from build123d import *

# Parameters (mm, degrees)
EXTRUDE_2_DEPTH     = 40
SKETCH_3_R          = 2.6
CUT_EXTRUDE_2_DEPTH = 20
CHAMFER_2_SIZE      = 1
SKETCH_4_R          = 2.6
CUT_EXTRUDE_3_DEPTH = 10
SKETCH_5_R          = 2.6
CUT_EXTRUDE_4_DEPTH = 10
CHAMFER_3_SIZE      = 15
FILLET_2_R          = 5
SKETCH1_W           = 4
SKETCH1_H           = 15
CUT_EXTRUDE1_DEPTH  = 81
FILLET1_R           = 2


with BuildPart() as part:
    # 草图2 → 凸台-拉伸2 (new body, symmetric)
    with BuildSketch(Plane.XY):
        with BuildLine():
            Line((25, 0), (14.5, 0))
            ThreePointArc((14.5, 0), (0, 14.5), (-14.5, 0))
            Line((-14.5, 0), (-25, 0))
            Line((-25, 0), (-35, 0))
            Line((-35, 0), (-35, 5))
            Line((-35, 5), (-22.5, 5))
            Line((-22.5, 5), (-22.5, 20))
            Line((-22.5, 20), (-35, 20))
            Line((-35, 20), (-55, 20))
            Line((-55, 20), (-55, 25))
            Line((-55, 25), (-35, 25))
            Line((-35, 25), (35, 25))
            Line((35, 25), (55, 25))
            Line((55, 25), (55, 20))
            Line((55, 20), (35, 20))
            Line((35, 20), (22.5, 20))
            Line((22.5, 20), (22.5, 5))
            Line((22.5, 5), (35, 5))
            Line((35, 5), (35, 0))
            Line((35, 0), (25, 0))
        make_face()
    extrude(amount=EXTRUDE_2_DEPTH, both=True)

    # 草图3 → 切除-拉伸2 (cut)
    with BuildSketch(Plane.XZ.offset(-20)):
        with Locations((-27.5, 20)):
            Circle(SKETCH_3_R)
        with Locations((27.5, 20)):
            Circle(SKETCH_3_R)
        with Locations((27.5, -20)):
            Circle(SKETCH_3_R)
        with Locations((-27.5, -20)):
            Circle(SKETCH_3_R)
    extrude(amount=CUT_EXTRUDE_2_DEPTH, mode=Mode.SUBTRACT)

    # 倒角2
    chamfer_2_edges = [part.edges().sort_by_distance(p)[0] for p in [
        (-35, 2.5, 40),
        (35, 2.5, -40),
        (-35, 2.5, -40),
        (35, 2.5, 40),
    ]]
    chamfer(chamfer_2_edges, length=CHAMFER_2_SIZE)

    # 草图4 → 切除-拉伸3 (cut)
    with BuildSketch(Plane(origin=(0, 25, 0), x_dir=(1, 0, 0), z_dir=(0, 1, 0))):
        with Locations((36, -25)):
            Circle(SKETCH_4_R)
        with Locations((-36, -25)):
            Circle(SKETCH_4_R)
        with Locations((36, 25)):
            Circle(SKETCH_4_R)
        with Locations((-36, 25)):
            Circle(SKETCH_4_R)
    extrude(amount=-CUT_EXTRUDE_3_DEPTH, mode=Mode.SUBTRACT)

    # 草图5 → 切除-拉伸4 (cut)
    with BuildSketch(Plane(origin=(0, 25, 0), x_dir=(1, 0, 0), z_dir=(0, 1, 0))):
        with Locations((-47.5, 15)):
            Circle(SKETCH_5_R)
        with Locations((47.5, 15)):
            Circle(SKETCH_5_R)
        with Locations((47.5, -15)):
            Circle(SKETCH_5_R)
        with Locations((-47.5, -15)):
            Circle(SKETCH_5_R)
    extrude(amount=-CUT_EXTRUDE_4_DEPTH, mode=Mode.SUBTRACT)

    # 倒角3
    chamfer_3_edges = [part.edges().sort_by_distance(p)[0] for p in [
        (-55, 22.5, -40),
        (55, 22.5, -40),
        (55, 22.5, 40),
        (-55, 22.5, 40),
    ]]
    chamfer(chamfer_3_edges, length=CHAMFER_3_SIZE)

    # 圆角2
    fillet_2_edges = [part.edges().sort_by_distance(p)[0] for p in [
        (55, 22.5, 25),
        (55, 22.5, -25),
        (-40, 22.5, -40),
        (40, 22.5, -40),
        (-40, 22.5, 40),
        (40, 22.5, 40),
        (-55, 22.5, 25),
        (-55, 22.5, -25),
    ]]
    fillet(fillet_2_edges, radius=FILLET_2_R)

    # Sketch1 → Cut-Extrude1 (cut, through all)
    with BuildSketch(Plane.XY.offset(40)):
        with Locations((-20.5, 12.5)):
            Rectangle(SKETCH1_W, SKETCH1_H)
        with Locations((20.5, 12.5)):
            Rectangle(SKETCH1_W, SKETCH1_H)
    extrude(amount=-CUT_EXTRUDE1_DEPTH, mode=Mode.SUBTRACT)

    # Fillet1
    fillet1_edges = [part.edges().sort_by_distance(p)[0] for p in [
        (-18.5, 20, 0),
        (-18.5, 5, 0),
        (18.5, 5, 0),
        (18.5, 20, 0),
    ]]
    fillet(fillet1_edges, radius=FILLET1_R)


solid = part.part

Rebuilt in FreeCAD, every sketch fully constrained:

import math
import FreeCAD as App
import Part
import Sketcher


def edges_at(feature, points):
    """Names of the edges that pass closest to the given points."""
    edges = feature.Shape.Edges
    near = lambda p: min(range(len(edges)), key=lambda i: edges[i].distToShape(Part.Vertex(*p))[0])
    return sorted({f"Edge{near(p) + 1}" for p in points})


def add_polygon(sketch, points):
    """Adds a closed chain of lines whose ends are joined by coincident constraints."""
    first, n = sketch.GeometryCount, len(points)
    for a, b in zip(points, points[1:] + points[:1]):
        sketch.addGeometry(Part.LineSegment(App.Vector(*a, 0), App.Vector(*b, 0)), False)
    for i in range(n):
        sketch.addConstraint(Sketcher.Constraint("Coincident", first + i, 2, first + (i + 1) % n, 1))

doc = App.newDocument("Part")
params = doc.addObject("Spreadsheet::Sheet", "Params")
for row, (alias, value) in enumerate([
    ("sketch1_radius", "14.5 mm"),
    ("sketch1_width", "110 mm"),
    ("sketch1_height", "5 mm"),
    ("sketch1_height2", "15 mm"),
    ("sketch1_width2", "20.5 mm"),
    ("pad1_length", "80 mm"),
    ("sketch2_diameter", "5.2 mm"),
    ("pocket1_length", "20 mm"),
    ("chamfer_size", "1 mm"),
    ("sketch3_diameter", "5.2 mm"),
    ("pocket2_length", "10 mm"),
    ("sketch4_diameter", "5.2 mm"),
    ("pocket3_length", "10 mm"),
    ("chamfer2_size", "15 mm"),
    ("fillet_radius", "5 mm"),
    ("sketch5_width", "4 mm"),
    ("sketch5_height", "15 mm"),
    ("fillet2_radius", "2 mm"),
], start=1):
    params.set(f"A{row}", alias)
    params.set(f"B{row}", "=" + value)
    params.setAlias(f"B{row}", alias)

body = doc.addObject("PartDesign::Body", "Body")

# Sketch on XY plane
sketch1 = doc.addObject("Sketcher::SketchObject", "Sketch")
body.addObject(sketch1)
sketch1.AttachmentSupport = (doc.XY_Plane, [""])
sketch1.MapMode = "FlatFace"
sketch1.addGeometry(Part.ArcOfCircle(Part.Circle(App.Vector(0, 0, 0), App.Vector(0, 0, 1), 14.5), math.radians(0), math.radians(180)), False)
sketch1.addGeometry(Part.LineSegment(App.Vector(14.5, 0, 0), App.Vector(35, 0, 0)), False)
sketch1.addGeometry(Part.LineSegment(App.Vector(35, 0, 0), App.Vector(35, 5, 0)), False)
sketch1.addGeometry(Part.LineSegment(App.Vector(35, 5, 0), App.Vector(22.5, 5, 0)), False)
sketch1.addGeometry(Part.LineSegment(App.Vector(22.5, 5, 0), App.Vector(22.5, 20, 0)), False)
sketch1.addGeometry(Part.LineSegment(App.Vector(22.5, 20, 0), App.Vector(55, 20, 0)), False)
sketch1.addGeometry(Part.LineSegment(App.Vector(55, 20, 0), App.Vector(55, 25, 0)), False)
sketch1.addGeometry(Part.LineSegment(App.Vector(55, 25, 0), App.Vector(-55, 25, 0)), False)
sketch1.addGeometry(Part.LineSegment(App.Vector(-55, 25, 0), App.Vector(-55, 20, 0)), False)
sketch1.addGeometry(Part.LineSegment(App.Vector(-55, 20, 0), App.Vector(-22.5, 20, 0)), False)
sketch1.addGeometry(Part.LineSegment(App.Vector(-22.5, 20, 0), App.Vector(-22.5, 5, 0)), False)
sketch1.addGeometry(Part.LineSegment(App.Vector(-22.5, 5, 0), App.Vector(-35, 5, 0)), False)
sketch1.addGeometry(Part.LineSegment(App.Vector(-35, 5, 0), App.Vector(-35, 0, 0)), False)
sketch1.addGeometry(Part.LineSegment(App.Vector(-35, 0, 0), App.Vector(-14.5, 0, 0)), False)
sketch1.addConstraint(Sketcher.Constraint("Coincident", 0, 1, 1, 1))
sketch1.addConstraint(Sketcher.Constraint("Coincident", 1, 2, 2, 1))
sketch1.addConstraint(Sketcher.Constraint("Coincident", 2, 2, 3, 1))
sketch1.addConstraint(Sketcher.Constraint("Coincident", 3, 2, 4, 1))
sketch1.addConstraint(Sketcher.Constraint("Coincident", 4, 2, 5, 1))
sketch1.addConstraint(Sketcher.Constraint("Coincident", 5, 2, 6, 1))
sketch1.addConstraint(Sketcher.Constraint("Coincident", 6, 2, 7, 1))
sketch1.addConstraint(Sketcher.Constraint("Coincident", 7, 2, 8, 1))
sketch1.addConstraint(Sketcher.Constraint("Coincident", 8, 2, 9, 1))
sketch1.addConstraint(Sketcher.Constraint("Coincident", 9, 2, 10, 1))
sketch1.addConstraint(Sketcher.Constraint("Coincident", 10, 2, 11, 1))
sketch1.addConstraint(Sketcher.Constraint("Coincident", 11, 2, 12, 1))
sketch1.addConstraint(Sketcher.Constraint("Coincident", 12, 2, 13, 1))
sketch1.addConstraint(Sketcher.Constraint("Coincident", 13, 2, 0, 2))
sketch1.addConstraint(Sketcher.Constraint("Horizontal", 1))
sketch1.addConstraint(Sketcher.Constraint("Vertical", 2))
sketch1.addConstraint(Sketcher.Constraint("Horizontal", 3))
sketch1.addConstraint(Sketcher.Constraint("Vertical", 4))
sketch1.addConstraint(Sketcher.Constraint("Horizontal", 5))
sketch1.addConstraint(Sketcher.Constraint("Vertical", 6))
sketch1.addConstraint(Sketcher.Constraint("Horizontal", 7))
sketch1.addConstraint(Sketcher.Constraint("Vertical", 8))
sketch1.addConstraint(Sketcher.Constraint("Horizontal", 9))
sketch1.addConstraint(Sketcher.Constraint("Vertical", 10))
sketch1.addConstraint(Sketcher.Constraint("Horizontal", 11))
sketch1.addConstraint(Sketcher.Constraint("Vertical", 12))
sketch1.addConstraint(Sketcher.Constraint("Horizontal", 13))
sketch1.addConstraint(Sketcher.Constraint("Coincident", 0, 3, -1, 1))
sketch1.addConstraint(Sketcher.Constraint("Symmetric", 1, 2, 12, 2, -1, 1))
sketch1.addConstraint(Sketcher.Constraint("Symmetric", 5, 2, 8, 2, -2))
sketch1.addConstraint(Sketcher.Constraint("Symmetric", 3, 2, 10, 2, -2))
sketch1.addConstraint(Sketcher.Constraint("PointOnObject", 0, 1, -1))
sketch1.addConstraint(Sketcher.Constraint("Equal", 2, 6))
sketch1.addConstraint(Sketcher.Constraint("Radius", 0, 14.5))
sketch1.addConstraint(Sketcher.Constraint("DistanceX", 7, 2, 7, 1, 110.0))
sketch1.addConstraint(Sketcher.Constraint("DistanceY", 2, 1, 2, 2, 5.0))
sketch1.addConstraint(Sketcher.Constraint("DistanceY", 4, 1, 4, 2, 15.0))
sketch1.addConstraint(Sketcher.Constraint("DistanceX", 1, 1, 1, 2, 20.5))
sketch1.addConstraint(Sketcher.Constraint("DistanceX", 3, 2, 3, 1, 12.5))
sketch1.setExpression("Constraints[33]", "Params.sketch1_radius")
sketch1.setExpression("Constraints[34]", "Params.sketch1_width")
sketch1.setExpression("Constraints[35]", "Params.sketch1_height")
sketch1.setExpression("Constraints[36]", "Params.sketch1_height2")
sketch1.setExpression("Constraints[37]", "Params.sketch1_width2")
pad1 = doc.addObject("PartDesign::Pad", "Pad")
body.addObject(pad1)
pad1.Profile = sketch1
pad1.setExpression("Length", "Params.pad1_length")
pad1.Midplane = True

# Sketch on XZ plane
sketch2 = doc.addObject("Sketcher::SketchObject", "Sketch001")
body.addObject(sketch2)
sketch2.AttachmentSupport = (doc.XZ_Plane, [""])
sketch2.MapMode = "FlatFace"
sketch2.AttachmentOffset = App.Placement(App.Vector(0, 0, -20), App.Rotation())
sketch2.addGeometry(Part.Circle(App.Vector(-27.5, 20, 0), App.Vector(0, 0, 1), 2.6), False)
sketch2.addGeometry(Part.Circle(App.Vector(27.5, 20, 0), App.Vector(0, 0, 1), 2.6), False)
sketch2.addGeometry(Part.Circle(App.Vector(27.5, -20, 0), App.Vector(0, 0, 1), 2.6), False)
sketch2.addGeometry(Part.Circle(App.Vector(-27.5, -20, 0), App.Vector(0, 0, 1), 2.6), False)
sketch2.addConstraint(Sketcher.Constraint("Equal", 0, 1))
sketch2.addConstraint(Sketcher.Constraint("Equal", 1, 2))
sketch2.addConstraint(Sketcher.Constraint("Equal", 2, 3))
sketch2.addConstraint(Sketcher.Constraint("Symmetric", 0, 3, 2, 3, -1, 1))
sketch2.addConstraint(Sketcher.Constraint("Symmetric", 1, 3, 3, 3, -1, 1))
sketch2.addConstraint(Sketcher.Constraint("Symmetric", 0, 3, 1, 3, -2))
sketch2.addConstraint(Sketcher.Constraint("Diameter", 0, 5.2))
sketch2.addConstraint(Sketcher.Constraint("DistanceY", -1, 1, 0, 3, 20.0))
sketch2.addConstraint(Sketcher.Constraint("DistanceX", 0, 3, 1, 3, 55.0))
sketch2.setExpression("Constraints[6]", "Params.sketch2_diameter")
pocket1 = doc.addObject("PartDesign::Pocket", "Pocket")
body.addObject(pocket1)
pocket1.Profile = sketch2
pocket1.setExpression("Length", "Params.pocket1_length")
pocket1.Reversed = True
doc.recompute()

chamfer = doc.addObject("PartDesign::Chamfer", "Chamfer")
body.addObject(chamfer)
chamfer.Base = (pocket1, edges_at(pocket1, [
    (-35, 2.5, 40),
    (35, 2.5, -40),
    (-35, 2.5, -40),
    (35, 2.5, 40),
]))
chamfer.setExpression("Size", "Params.chamfer_size")

# Sketch on XZ plane
sketch3 = doc.addObject("Sketcher::SketchObject", "Sketch002")
body.addObject(sketch3)
sketch3.AttachmentSupport = (doc.XZ_Plane, [""])
sketch3.MapMode = "FlatFace"
sketch3.AttachmentOffset = App.Placement(App.Vector(0, 0, -25), App.Rotation())
sketch3.addGeometry(Part.Circle(App.Vector(36, 25, 0), App.Vector(0, 0, 1), 2.6), False)
sketch3.addGeometry(Part.Circle(App.Vector(-36, 25, 0), App.Vector(0, 0, 1), 2.6), False)
sketch3.addGeometry(Part.Circle(App.Vector(36, -25, 0), App.Vector(0, 0, 1), 2.6), False)
sketch3.addGeometry(Part.Circle(App.Vector(-36, -25, 0), App.Vector(0, 0, 1), 2.6), False)
sketch3.addConstraint(Sketcher.Constraint("Equal", 0, 1))
sketch3.addConstraint(Sketcher.Constraint("Equal", 1, 2))
sketch3.addConstraint(Sketcher.Constraint("Equal", 2, 3))
sketch3.addConstraint(Sketcher.Constraint("Symmetric", 1, 3, 2, 3, -1, 1))
sketch3.addConstraint(Sketcher.Constraint("Symmetric", 0, 3, 3, 3, -1, 1))
sketch3.addConstraint(Sketcher.Constraint("Symmetric", 0, 3, 1, 3, -2))
sketch3.addConstraint(Sketcher.Constraint("Diameter", 0, 5.2))
sketch3.addConstraint(Sketcher.Constraint("DistanceX", -1, 1, 0, 3, 36.0))
sketch3.addConstraint(Sketcher.Constraint("DistanceY", -1, 1, 0, 3, 25.0))
sketch3.setExpression("Constraints[6]", "Params.sketch3_diameter")
pocket2 = doc.addObject("PartDesign::Pocket", "Pocket001")
body.addObject(pocket2)
pocket2.Profile = sketch3
pocket2.setExpression("Length", "Params.pocket2_length")
pocket2.Reversed = True

# Sketch on XZ plane
sketch4 = doc.addObject("Sketcher::SketchObject", "Sketch003")
body.addObject(sketch4)
sketch4.AttachmentSupport = (doc.XZ_Plane, [""])
sketch4.MapMode = "FlatFace"
sketch4.AttachmentOffset = App.Placement(App.Vector(0, 0, -25), App.Rotation())
sketch4.addGeometry(Part.Circle(App.Vector(-47.5, -15, 0), App.Vector(0, 0, 1), 2.6), False)
sketch4.addGeometry(Part.Circle(App.Vector(47.5, -15, 0), App.Vector(0, 0, 1), 2.6), False)
sketch4.addGeometry(Part.Circle(App.Vector(47.5, 15, 0), App.Vector(0, 0, 1), 2.6), False)
sketch4.addGeometry(Part.Circle(App.Vector(-47.5, 15, 0), App.Vector(0, 0, 1), 2.6), False)
sketch4.addConstraint(Sketcher.Constraint("Equal", 0, 1))
sketch4.addConstraint(Sketcher.Constraint("Equal", 1, 2))
sketch4.addConstraint(Sketcher.Constraint("Equal", 2, 3))
sketch4.addConstraint(Sketcher.Constraint("Symmetric", 0, 3, 2, 3, -1, 1))
sketch4.addConstraint(Sketcher.Constraint("Symmetric", 1, 3, 3, 3, -1, 1))
sketch4.addConstraint(Sketcher.Constraint("Symmetric", 0, 3, 1, 3, -2))
sketch4.addConstraint(Sketcher.Constraint("Diameter", 0, 5.2))
sketch4.addConstraint(Sketcher.Constraint("DistanceY", 0, 3, -1, 1, 15.0))
sketch4.addConstraint(Sketcher.Constraint("DistanceX", 0, 3, 1, 3, 95.0))
sketch4.setExpression("Constraints[6]", "Params.sketch4_diameter")
pocket3 = doc.addObject("PartDesign::Pocket", "Pocket002")
body.addObject(pocket3)
pocket3.Profile = sketch4
pocket3.setExpression("Length", "Params.pocket3_length")
pocket3.Reversed = True
doc.recompute()

chamfer2 = doc.addObject("PartDesign::Chamfer", "Chamfer001")
body.addObject(chamfer2)
chamfer2.Base = (pocket3, edges_at(pocket3, [
    (-55, 22.5, -40),
    (55, 22.5, -40),
    (55, 22.5, 40),
    (-55, 22.5, 40),
]))
chamfer2.setExpression("Size", "Params.chamfer2_size")
doc.recompute()

fillet = doc.addObject("PartDesign::Fillet", "Fillet")
body.addObject(fillet)
fillet.Base = (chamfer2, edges_at(chamfer2, [
    (55, 22.5, 25),
    (55, 22.5, -25),
    (-40, 22.5, -40),
    (40, 22.5, -40),
    (-40, 22.5, 40),
    (40, 22.5, 40),
    (-55, 22.5, 25),
    (-55, 22.5, -25),
]))
fillet.setExpression("Radius", "Params.fillet_radius")

# Sketch on XY plane
sketch5 = doc.addObject("Sketcher::SketchObject", "Sketch004")
body.addObject(sketch5)
sketch5.AttachmentSupport = (doc.XY_Plane, [""])
sketch5.MapMode = "FlatFace"
sketch5.AttachmentOffset = App.Placement(App.Vector(0, 0, 40), App.Rotation())
add_polygon(sketch5, [(-22.5, 20), (-22.5, 5), (-18.5, 5), (-18.5, 20)])  # lines 0-3
add_polygon(sketch5, [(18.5, 20), (18.5, 5), (22.5, 5), (22.5, 20)])  # lines 4-7
sketch5.addConstraint(Sketcher.Constraint("Vertical", 0))
sketch5.addConstraint(Sketcher.Constraint("Horizontal", 1))
sketch5.addConstraint(Sketcher.Constraint("Vertical", 2))
sketch5.addConstraint(Sketcher.Constraint("Horizontal", 3))
sketch5.addConstraint(Sketcher.Constraint("Vertical", 4))
sketch5.addConstraint(Sketcher.Constraint("Horizontal", 5))
sketch5.addConstraint(Sketcher.Constraint("Vertical", 6))
sketch5.addConstraint(Sketcher.Constraint("Horizontal", 7))
sketch5.addConstraint(Sketcher.Constraint("Symmetric", 1, 2, 4, 2, -2))
sketch5.addConstraint(Sketcher.Constraint("Symmetric", 3, 2, 6, 2, -2))
sketch5.addConstraint(Sketcher.Constraint("DistanceX", 1, 1, 1, 2, 4.0))
sketch5.addConstraint(Sketcher.Constraint("DistanceY", 0, 2, 0, 1, 15.0))
sketch5.addConstraint(Sketcher.Constraint("DistanceY", -1, 1, 0, 2, 5.0))
sketch5.addConstraint(Sketcher.Constraint("DistanceX", 1, 2, 4, 2, 37.0))
sketch5.setExpression("Constraints[18]", "Params.sketch5_width")
sketch5.setExpression("Constraints[19]", "Params.sketch5_height")
pocket4 = doc.addObject("PartDesign::Pocket", "Pocket003")
body.addObject(pocket4)
pocket4.Profile = sketch5
pocket4.Type = "ThroughAll"
doc.recompute()

fillet2 = doc.addObject("PartDesign::Fillet", "Fillet001")
body.addObject(fillet2)
fillet2.Base = (pocket4, edges_at(pocket4, [
    (-18.5, 20, 0),
    (-18.5, 5, 0),
    (18.5, 5, 0),
    (18.5, 20, 0),
]))
fillet2.setExpression("Radius", "Params.fillet2_radius")

doc.recompute()
